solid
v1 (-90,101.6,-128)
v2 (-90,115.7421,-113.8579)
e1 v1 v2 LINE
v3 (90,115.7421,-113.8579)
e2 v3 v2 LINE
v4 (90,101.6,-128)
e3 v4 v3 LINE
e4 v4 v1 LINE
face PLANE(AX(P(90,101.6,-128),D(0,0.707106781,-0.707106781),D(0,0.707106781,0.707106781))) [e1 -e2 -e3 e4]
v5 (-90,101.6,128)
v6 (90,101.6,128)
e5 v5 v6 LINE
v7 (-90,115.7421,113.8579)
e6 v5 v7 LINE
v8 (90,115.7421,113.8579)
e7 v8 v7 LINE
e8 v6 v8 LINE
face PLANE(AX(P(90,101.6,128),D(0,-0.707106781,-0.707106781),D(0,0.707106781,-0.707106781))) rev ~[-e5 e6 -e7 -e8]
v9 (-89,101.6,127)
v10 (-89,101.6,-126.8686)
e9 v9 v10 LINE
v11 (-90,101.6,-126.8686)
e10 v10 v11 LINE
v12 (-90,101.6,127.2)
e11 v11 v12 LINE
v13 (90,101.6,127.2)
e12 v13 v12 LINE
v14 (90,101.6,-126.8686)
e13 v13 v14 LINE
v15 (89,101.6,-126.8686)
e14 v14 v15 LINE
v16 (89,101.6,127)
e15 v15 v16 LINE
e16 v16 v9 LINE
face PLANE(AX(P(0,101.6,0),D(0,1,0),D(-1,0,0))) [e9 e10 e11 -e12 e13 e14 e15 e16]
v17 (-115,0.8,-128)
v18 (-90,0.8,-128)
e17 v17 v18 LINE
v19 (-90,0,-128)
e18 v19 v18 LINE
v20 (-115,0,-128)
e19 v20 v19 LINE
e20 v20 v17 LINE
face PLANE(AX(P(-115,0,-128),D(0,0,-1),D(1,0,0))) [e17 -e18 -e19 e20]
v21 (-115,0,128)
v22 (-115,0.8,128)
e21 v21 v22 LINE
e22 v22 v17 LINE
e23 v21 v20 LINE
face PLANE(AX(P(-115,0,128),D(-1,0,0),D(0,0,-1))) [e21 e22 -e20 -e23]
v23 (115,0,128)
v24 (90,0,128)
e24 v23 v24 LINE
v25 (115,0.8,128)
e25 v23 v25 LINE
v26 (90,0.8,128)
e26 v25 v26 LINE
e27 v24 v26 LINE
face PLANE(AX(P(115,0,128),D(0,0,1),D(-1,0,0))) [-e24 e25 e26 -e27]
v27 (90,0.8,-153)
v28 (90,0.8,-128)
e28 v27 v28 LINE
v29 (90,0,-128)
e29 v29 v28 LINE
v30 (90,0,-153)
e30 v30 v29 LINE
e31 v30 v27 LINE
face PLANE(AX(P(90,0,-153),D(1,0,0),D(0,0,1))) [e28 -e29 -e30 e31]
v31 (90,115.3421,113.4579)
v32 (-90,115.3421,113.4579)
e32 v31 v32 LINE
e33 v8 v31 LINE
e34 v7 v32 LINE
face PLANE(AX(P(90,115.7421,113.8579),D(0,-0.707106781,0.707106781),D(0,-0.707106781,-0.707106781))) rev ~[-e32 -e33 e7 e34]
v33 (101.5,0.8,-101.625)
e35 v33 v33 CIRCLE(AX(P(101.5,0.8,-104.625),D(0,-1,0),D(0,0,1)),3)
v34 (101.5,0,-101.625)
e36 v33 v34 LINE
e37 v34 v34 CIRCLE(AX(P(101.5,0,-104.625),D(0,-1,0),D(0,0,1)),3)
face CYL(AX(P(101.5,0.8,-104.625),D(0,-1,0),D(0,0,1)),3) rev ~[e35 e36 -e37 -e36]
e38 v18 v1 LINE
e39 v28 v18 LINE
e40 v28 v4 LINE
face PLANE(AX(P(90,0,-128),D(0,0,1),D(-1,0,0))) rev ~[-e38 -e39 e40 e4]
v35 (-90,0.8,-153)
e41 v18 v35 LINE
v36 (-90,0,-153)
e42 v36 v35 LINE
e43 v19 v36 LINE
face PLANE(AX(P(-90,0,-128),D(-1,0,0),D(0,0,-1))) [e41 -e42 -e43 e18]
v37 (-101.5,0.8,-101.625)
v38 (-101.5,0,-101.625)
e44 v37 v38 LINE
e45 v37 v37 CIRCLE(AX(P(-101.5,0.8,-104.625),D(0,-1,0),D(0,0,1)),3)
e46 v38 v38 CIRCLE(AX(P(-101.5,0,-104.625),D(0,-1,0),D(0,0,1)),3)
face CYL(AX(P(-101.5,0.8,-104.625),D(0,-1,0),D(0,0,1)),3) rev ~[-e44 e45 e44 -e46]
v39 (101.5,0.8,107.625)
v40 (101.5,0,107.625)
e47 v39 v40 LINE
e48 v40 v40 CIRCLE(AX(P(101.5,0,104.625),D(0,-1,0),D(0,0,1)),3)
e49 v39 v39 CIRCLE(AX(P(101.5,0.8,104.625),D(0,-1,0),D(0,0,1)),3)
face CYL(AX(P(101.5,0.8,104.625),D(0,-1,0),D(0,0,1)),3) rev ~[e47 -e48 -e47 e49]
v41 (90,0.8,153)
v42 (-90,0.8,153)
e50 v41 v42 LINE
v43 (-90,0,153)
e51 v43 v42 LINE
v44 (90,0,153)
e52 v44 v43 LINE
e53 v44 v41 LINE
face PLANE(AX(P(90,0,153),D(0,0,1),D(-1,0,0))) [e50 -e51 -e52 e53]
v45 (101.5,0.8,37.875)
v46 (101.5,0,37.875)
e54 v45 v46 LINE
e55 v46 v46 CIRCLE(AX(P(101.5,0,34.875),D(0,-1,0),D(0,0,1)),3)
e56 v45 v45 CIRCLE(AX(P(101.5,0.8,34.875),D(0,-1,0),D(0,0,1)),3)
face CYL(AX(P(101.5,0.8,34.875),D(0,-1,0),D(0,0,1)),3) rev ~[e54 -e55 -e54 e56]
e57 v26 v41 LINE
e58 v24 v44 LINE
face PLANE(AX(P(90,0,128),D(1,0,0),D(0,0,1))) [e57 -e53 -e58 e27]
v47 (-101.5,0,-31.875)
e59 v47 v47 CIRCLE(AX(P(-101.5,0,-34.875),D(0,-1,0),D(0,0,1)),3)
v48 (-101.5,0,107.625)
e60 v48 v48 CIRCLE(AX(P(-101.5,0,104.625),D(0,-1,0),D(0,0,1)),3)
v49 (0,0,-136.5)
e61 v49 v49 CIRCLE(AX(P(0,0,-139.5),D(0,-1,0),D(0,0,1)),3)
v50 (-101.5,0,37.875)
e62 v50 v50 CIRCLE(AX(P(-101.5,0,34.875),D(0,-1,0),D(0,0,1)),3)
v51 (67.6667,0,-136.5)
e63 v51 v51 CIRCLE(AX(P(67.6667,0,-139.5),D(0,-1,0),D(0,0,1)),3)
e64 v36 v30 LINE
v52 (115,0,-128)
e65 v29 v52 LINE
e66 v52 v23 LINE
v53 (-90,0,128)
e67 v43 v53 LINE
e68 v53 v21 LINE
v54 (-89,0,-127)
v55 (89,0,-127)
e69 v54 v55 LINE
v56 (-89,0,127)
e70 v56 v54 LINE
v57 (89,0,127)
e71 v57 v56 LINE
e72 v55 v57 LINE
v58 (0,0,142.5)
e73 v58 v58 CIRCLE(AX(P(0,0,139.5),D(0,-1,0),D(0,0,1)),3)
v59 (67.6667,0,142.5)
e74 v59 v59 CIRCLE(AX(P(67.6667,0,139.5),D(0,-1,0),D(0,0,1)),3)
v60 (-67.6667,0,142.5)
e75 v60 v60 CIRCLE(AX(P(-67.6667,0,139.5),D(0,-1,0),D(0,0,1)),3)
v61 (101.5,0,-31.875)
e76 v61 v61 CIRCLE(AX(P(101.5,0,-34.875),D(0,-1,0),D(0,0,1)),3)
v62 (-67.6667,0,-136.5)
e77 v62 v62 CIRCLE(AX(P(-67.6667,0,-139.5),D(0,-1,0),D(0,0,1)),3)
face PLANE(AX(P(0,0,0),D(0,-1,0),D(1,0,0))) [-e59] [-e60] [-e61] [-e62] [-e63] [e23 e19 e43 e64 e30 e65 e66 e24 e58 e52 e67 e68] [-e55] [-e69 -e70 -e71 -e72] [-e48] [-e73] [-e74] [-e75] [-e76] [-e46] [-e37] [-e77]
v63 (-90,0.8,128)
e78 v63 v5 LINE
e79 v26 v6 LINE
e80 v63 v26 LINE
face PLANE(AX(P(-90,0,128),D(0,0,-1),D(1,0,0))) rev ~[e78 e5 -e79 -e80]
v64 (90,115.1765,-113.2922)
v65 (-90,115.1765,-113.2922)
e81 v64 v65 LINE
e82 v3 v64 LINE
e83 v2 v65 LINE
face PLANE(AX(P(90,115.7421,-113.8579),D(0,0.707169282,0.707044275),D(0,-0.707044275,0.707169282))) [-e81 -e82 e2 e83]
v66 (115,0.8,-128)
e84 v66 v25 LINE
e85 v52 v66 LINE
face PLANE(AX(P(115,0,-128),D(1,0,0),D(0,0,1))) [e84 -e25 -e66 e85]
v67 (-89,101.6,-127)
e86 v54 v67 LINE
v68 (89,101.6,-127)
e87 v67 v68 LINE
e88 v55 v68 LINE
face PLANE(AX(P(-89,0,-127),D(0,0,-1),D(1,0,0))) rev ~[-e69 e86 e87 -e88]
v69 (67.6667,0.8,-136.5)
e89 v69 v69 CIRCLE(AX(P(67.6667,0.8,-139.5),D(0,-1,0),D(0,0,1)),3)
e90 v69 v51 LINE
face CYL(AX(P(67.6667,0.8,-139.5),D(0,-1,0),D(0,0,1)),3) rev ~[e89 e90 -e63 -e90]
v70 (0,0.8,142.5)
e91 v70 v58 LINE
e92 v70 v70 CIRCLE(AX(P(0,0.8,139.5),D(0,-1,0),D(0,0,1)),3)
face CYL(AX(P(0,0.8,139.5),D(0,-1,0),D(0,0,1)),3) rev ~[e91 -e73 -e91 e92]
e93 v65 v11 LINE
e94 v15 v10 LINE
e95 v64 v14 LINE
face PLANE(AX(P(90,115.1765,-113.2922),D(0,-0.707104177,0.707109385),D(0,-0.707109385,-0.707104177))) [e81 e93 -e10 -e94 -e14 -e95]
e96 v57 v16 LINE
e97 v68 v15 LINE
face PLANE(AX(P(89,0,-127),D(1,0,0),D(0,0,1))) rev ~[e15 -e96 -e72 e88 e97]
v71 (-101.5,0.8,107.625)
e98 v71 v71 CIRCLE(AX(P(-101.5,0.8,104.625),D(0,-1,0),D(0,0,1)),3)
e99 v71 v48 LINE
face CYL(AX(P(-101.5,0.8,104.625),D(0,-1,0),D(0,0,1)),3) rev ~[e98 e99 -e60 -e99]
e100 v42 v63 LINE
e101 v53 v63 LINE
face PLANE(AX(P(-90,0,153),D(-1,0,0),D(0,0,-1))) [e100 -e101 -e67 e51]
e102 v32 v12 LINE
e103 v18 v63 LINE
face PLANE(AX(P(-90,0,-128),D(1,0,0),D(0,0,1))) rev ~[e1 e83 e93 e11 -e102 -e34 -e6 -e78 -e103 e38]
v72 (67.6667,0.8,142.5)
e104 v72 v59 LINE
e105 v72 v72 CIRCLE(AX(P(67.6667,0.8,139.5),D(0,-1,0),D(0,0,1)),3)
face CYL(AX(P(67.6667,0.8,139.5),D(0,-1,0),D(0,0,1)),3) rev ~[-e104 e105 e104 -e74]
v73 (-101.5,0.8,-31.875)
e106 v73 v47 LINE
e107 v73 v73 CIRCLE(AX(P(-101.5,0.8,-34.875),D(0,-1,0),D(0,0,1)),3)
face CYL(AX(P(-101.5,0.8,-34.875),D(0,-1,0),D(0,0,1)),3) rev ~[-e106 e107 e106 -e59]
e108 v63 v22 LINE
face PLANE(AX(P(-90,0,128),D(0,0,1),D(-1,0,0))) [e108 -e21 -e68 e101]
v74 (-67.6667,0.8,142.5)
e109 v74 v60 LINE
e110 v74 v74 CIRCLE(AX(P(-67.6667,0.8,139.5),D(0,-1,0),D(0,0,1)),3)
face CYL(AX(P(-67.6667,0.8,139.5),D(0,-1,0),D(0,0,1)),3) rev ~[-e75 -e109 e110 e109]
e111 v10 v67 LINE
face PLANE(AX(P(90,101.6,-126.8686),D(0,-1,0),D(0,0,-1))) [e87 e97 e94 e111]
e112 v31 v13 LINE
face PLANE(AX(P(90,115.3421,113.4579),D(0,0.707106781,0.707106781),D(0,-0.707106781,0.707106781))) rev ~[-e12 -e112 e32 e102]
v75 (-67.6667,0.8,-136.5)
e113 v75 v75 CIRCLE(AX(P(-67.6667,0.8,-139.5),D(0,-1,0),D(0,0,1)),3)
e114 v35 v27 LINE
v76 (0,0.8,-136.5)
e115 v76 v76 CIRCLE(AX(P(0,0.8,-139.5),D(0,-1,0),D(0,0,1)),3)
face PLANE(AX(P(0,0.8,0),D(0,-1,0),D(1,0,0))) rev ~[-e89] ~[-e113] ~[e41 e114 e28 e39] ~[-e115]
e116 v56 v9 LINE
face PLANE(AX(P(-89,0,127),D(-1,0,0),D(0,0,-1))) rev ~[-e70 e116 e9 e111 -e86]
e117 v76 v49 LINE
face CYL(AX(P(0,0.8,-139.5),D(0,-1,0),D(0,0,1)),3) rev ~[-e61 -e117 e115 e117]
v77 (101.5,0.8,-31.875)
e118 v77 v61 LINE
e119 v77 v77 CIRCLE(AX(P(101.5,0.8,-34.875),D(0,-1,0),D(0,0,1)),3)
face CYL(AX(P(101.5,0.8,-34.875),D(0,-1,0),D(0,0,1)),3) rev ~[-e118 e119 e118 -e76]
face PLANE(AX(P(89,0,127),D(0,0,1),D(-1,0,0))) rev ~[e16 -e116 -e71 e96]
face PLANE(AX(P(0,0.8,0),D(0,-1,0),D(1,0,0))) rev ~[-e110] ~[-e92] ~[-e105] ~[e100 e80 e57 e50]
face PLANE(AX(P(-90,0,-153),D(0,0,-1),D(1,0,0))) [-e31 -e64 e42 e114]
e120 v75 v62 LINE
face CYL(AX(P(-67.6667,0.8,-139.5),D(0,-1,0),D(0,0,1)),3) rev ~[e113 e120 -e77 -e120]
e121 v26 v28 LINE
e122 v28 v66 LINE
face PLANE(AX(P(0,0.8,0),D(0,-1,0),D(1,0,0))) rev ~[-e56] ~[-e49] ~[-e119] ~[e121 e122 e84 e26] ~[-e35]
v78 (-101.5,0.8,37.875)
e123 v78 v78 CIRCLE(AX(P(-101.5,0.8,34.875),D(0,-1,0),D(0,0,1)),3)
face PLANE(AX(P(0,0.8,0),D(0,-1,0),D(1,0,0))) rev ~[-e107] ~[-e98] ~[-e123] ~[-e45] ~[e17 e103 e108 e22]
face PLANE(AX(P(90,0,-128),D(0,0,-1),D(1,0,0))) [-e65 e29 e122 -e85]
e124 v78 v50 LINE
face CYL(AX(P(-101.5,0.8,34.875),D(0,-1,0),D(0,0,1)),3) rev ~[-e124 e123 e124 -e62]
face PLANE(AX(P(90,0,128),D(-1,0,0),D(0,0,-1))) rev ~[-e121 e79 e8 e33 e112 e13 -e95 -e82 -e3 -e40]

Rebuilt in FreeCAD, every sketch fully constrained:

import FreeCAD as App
import Part
import Sketcher
from FreeCAD import Vector
Q = App.Units.Quantity

doc = App.newDocument("Part")
params = doc.addObject("Spreadsheet::Sheet", "Params")
for row, (alias, value) in enumerate([
    ("sketch1_width", "178 mm"),
    ("sketch1_height", "254 mm"),
    ("pad1_length", "101.6 mm"),
    ("sketch2_width", "25 mm"),
    ("sketch2_width2", "180 mm"),
    ("sketch2_height", "256 mm"),
    ("pad2_length", "0.8 mm"),
    ("sketch3_diameter", "6 mm"),
    ("hole_diameter", "6 mm"),
    ("sketch4_length", "20 mm"),
    ("sketch4_height", "0.8 mm"),
    ("sketch4_length2", "0.8 mm"),
    ("pad3_length", "180 mm"),
], start=1):
    params.set(f"A{row}", alias)
    params.set(f"B{row}", "=" + value)
    params.setAlias(f"B{row}", alias)

body = doc.addObject("PartDesign::Body", "Body")

sketch1 = doc.addObject("Sketcher::SketchObject", "Sketch")
body.addObject(sketch1)
sketch1.AttachmentSupport = (doc.XZ_Plane, [""])
sketch1.MapMode = "FlatFace"
sketch1.addGeometry([
    Part.LineSegment(Vector(-90, -128, 0), Vector(-90, 128, 0)),
    Part.LineSegment(Vector(-90, 128, 0), Vector(90, 128, 0)),
    Part.LineSegment(Vector(90, 128, 0), Vector(90, -128, 0)),
    Part.LineSegment(Vector(90, -128, 0), Vector(-90, -128, 0)),
    Part.LineSegment(Vector(89, -127, 0), Vector(89, 127, 0)),
    Part.LineSegment(Vector(89, 127, 0), Vector(-89, 127, 0)),
    Part.LineSegment(Vector(-89, 127, 0), Vector(-89, -127, 0)),
    Part.LineSegment(Vector(-89, -127, 0), Vector(89, -127, 0)),
], False)
sketch1.addConstraint([
    Sketcher.Constraint("Coincident", 0, 2, 1, 1),
    Sketcher.Constraint("Coincident", 1, 2, 2, 1),
    Sketcher.Constraint("Coincident", 2, 2, 3, 1),
    Sketcher.Constraint("Coincident", 3, 2, 0, 1),
    Sketcher.Constraint("Coincident", 4, 2, 5, 1),
    Sketcher.Constraint("Coincident", 5, 2, 6, 1),
    Sketcher.Constraint("Coincident", 6, 2, 7, 1),
    Sketcher.Constraint("Coincident", 7, 2, 4, 1),
    Sketcher.Constraint("Vertical", 0),
    Sketcher.Constraint("Horizontal", 1),
    Sketcher.Constraint("Vertical", 2),
    Sketcher.Constraint("Horizontal", 3),
    Sketcher.Constraint("Vertical", 4),
    Sketcher.Constraint("Horizontal", 5),
    Sketcher.Constraint("Vertical", 6),
    Sketcher.Constraint("Horizontal", 7),
    Sketcher.Constraint("Symmetric", 0, 2, 2, 2, -1, 1),
    Sketcher.Constraint("Symmetric", 4, 2, 6, 2, -1, 1),
    Sketcher.Constraint("DistanceX", 5, 2, 5, 1, Q("178 mm")),
    Sketcher.Constraint("DistanceY", 4, 1, 4, 2, Q("254 mm")),
    Sketcher.Constraint("DistanceX", 4, 2, 1, 2, Q("1 mm")),
    Sketcher.Constraint("DistanceY", 4, 2, 1, 2, Q("1 mm")),
])
sketch1.setExpression("Constraints[18]", "Params.sketch1_width")
sketch1.setExpression("Constraints[19]", "Params.sketch1_height")
pad1 = doc.addObject("PartDesign::Pad", "Pad")
body.addObject(pad1)
pad1.Profile = sketch1
pad1.setExpression("Length", "Params.pad1_length")
pad1.Reversed = True

sketch2 = doc.addObject("Sketcher::SketchObject", "Sketch001")
body.addObject(sketch2)
sketch2.AttachmentSupport = (doc.XZ_Plane, [""])
sketch2.MapMode = "FlatFace"
sketch2.addGeometry([
    Part.LineSegment(Vector(115, 128, 0), Vector(90, 128, 0)),
    Part.LineSegment(Vector(90, 128, 0), Vector(90, -128, 0)),
    Part.LineSegment(Vector(90, -128, 0), Vector(115, -128, 0)),
    Part.LineSegment(Vector(115, -128, 0), Vector(115, 128, 0)),
    Part.LineSegment(Vector(-90, 128, 0), Vector(90, 128, 0)),
    Part.LineSegment(Vector(90, 128, 0), Vector(90, 153, 0)),
    Part.LineSegment(Vector(90, 153, 0), Vector(-90, 153, 0)),
    Part.LineSegment(Vector(-90, 153, 0), Vector(-90, 128, 0)),
    Part.LineSegment(Vector(90, -153, 0), Vector(90, -128, 0)),
    Part.LineSegment(Vector(90, -128, 0), Vector(-90, -128, 0)),
    Part.LineSegment(Vector(-90, -128, 0), Vector(-90, -153, 0)),
    Part.LineSegment(Vector(-90, -153, 0), Vector(90, -153, 0)),
    Part.LineSegment(Vector(-90, -128, 0), Vector(-90, 128, 0)),
    Part.LineSegment(Vector(-90, 128, 0), Vector(-115, 128, 0)),
    Part.LineSegment(Vector(-115, 128, 0), Vector(-115, -128, 0)),
    Part.LineSegment(Vector(-115, -128, 0), Vector(-90, -128, 0)),
], False)
sketch2.addConstraint([
    Sketcher.Constraint("Coincident", 0, 2, 1, 1),
    Sketcher.Constraint("Coincident", 1, 2, 2, 1),
    Sketcher.Constraint("Coincident", 2, 2, 3, 1),
    Sketcher.Constraint("Coincident", 3, 2, 0, 1),
    Sketcher.Constraint("Coincident", 4, 2, 5, 1),
    Sketcher.Constraint("Coincident", 5, 2, 6, 1),
    Sketcher.Constraint("Coincident", 6, 2, 7, 1),
    Sketcher.Constraint("Coincident", 7, 2, 4, 1),
    Sketcher.Constraint("Coincident", 8, 2, 9, 1),
    Sketcher.Constraint("Coincident", 9, 2, 10, 1),
    Sketcher.Constraint("Coincident", 10, 2, 11, 1),
    Sketcher.Constraint("Coincident", 11, 2, 8, 1),
    Sketcher.Constraint("Coincident", 12, 2, 13, 1),
    Sketcher.Constraint("Coincident", 13, 2, 14, 1),
    Sketcher.Constraint("Coincident", 14, 2, 15, 1),
    Sketcher.Constraint("Coincident", 15, 2, 12, 1),
    Sketcher.Constraint("Horizontal", 0),
    Sketcher.Constraint("Vertical", 1),
    Sketcher.Constraint("Horizontal", 2),
    Sketcher.Constraint("Vertical", 3),
    Sketcher.Constraint("Horizontal", 4),
    Sketcher.Constraint("Vertical", 5),
    Sketcher.Constraint("Horizontal", 6),
    Sketcher.Constraint("Vertical", 7),
    Sketcher.Constraint("Vertical", 8),
    Sketcher.Constraint("Horizontal", 9),
    Sketcher.Constraint("Vertical", 10),
    Sketcher.Constraint("Horizontal", 11),
    Sketcher.Constraint("Vertical", 12),
    Sketcher.Constraint("Horizontal", 13),
    Sketcher.Constraint("Vertical", 14),
    Sketcher.Constraint("Horizontal", 15),
    Sketcher.Constraint("Coincident", 4, 2, 0, 2),
    Sketcher.Constraint("Coincident", 8, 2, 1, 2),
    Sketcher.Constraint("Coincident", 12, 2, 7, 2),
    Sketcher.Constraint("Coincident", 15, 2, 9, 2),
    Sketcher.Constraint("Symmetric", 1, 2, 7, 2, -1, 1),
    Sketcher.Constraint("Equal", 2, 13),
    Sketcher.Constraint("Equal", 15, 5),
    Sketcher.Constraint("Equal", 7, 8),
    Sketcher.Constraint("DistanceX", 0, 2, 0, 1, Q("25 mm")),
    Sketcher.Constraint("DistanceX", 4, 1, 4, 2, Q("180 mm")),
    Sketcher.Constraint("DistanceY", 1, 2, 1, 1, Q("256 mm")),
])
sketch2.setExpression("Constraints[40]", "Params.sketch2_width")
sketch2.setExpression("Constraints[41]", "Params.sketch2_width2")
sketch2.setExpression("Constraints[42]", "Params.sketch2_height")
pad2 = doc.addObject("PartDesign::Pad", "Pad001")
body.addObject(pad2)
pad2.Profile = sketch2
pad2.setExpression("Length", "Params.pad2_length")
pad2.Reversed = True

sketch3 = doc.addObject("Sketcher::SketchObject", "Sketch002")
body.addObject(sketch3)
sketch3.AttachmentSupport = (doc.XZ_Plane, [""])
sketch3.MapMode = "FlatFace"
sketch3.AttachmentOffset = App.Placement(Vector(0, 0, -0.8), App.Rotation())
sketch3.addGeometry([
    Part.Circle(Vector(101.5, -139.5, 0), Vector(0, 0, 1), 3),
    Part.Circle(Vector(101.5, -104.6, 0), Vector(0, 0, 1), 3),
    Part.Circle(Vector(101.5, -34.9, 0), Vector(0, 0, 1), 3),
    Part.Circle(Vector(101.5, 34.9, 0), Vector(0, 0, 1), 3),
    Part.Circle(Vector(101.5, 104.6, 0), Vector(0, 0, 1), 3),
    Part.Circle(Vector(101.5, 139.5, 0), Vector(0, 0, 1), 3),
    Part.Circle(Vector(67.7, -139.5, 0), Vector(0, 0, 1), 3),
    Part.Circle(Vector(0, -139.5, 0), Vector(0, 0, 1), 3),
    Part.Circle(Vector(-67.7, -139.5, 0), Vector(0, 0, 1), 3),
    Part.Circle(Vector(-101.5, -139.5, 0), Vector(0, 0, 1), 3),
    Part.Circle(Vector(67.7, 139.5, 0), Vector(0, 0, 1), 3),
    Part.Circle(Vector(0, 139.5, 0), Vector(0, 0, 1), 3),
    Part.Circle(Vector(-67.7, 139.5, 0), Vector(0, 0, 1), 3),
    Part.Circle(Vector(-101.5, 139.5, 0), Vector(0, 0, 1), 3),
    Part.Circle(Vector(-101.5, -104.6, 0), Vector(0, 0, 1), 3),
    Part.Circle(Vector(-101.5, -34.9, 0), Vector(0, 0, 1), 3),
    Part.Circle(Vector(-101.5, 34.9, 0), Vector(0, 0, 1), 3),
    Part.Circle(Vector(-101.5, 104.6, 0), Vector(0, 0, 1), 3),
], False)
sketch3.addConstraint([
    Sketcher.Constraint("Equal", 0, 1),
    Sketcher.Constraint("Equal", 1, 2),
    Sketcher.Constraint("Equal", 2, 3),
    Sketcher.Constraint("Equal", 3, 4),
    Sketcher.Constraint("Equal", 4, 5),
    Sketcher.Constraint("Equal", 5, 6),
    Sketcher.Constraint("Equal", 6, 7),
    Sketcher.Constraint("Equal", 7, 8),
    Sketcher.Constraint("Equal", 8, 9),
    Sketcher.Constraint("Equal", 9, 10),
    Sketcher.Constraint("Equal", 10, 11),
    Sketcher.Constraint("Equal", 11, 12),
    Sketcher.Constraint("Equal", 12, 13),
    Sketcher.Constraint("Equal", 13, 14),
    Sketcher.Constraint("Equal", 14, 15),
    Sketcher.Constraint("Equal", 15, 16),
    Sketcher.Constraint("Equal", 16, 17),
    Sketcher.Constraint("Symmetric", 5, 3, 9, 3, -1, 1),
    Sketcher.Constraint("Symmetric", 8, 3, 10, 3, -1, 1),
    Sketcher.Constraint("Symmetric", 7, 3, 11, 3, -1, 1),
    Sketcher.Constraint("Symmetric", 6, 3, 12, 3, -1, 1),
    Sketcher.Constraint("Symmetric", 0, 3, 13, 3, -1, 1),
    Sketcher.Constraint("Symmetric", 4, 3, 14, 3, -1, 1),
    Sketcher.Constraint("Symmetric", 3, 3, 15, 3, -1, 1),
    Sketcher.Constraint("Symmetric", 2, 3, 16, 3, -1, 1),
    Sketcher.Constraint("Symmetric", 1, 3, 17, 3, -1, 1),
    Sketcher.Constraint("Symmetric", 6, 3, 8, 3, -2),
    Sketcher.Constraint("Symmetric", 0, 3, 9, 3, -2),
    Sketcher.Constraint("Symmetric", 1, 3, 14, 3, -2),
    Sketcher.Constraint("Symmetric", 2, 3, 15, 3, -2),
    Sketcher.Constraint("PointOnObject", 7, 3, -2),
    Sketcher.Constraint("Horizontal", 0, 3, 6, 3),
    Sketcher.Constraint("Horizontal", 6, 3, 7, 3),
    Sketcher.Constraint("Vertical", 0, 3, 1, 3),
    Sketcher.Constraint("Vertical", 1, 3, 2, 3),
    Sketcher.Constraint("Diameter", 0, Q("6 mm")),
    Sketcher.Constraint("DistanceY", 0, 3, 5, 3, Q("279 mm")),
    Sketcher.Constraint("DistanceX", 9, 3, 0, 3, Q("203 mm")),
    Sketcher.Constraint("DistanceY", 1, 3, 3, 3, Q("139.5 mm")),
    Sketcher.Constraint("DistanceY", 1, 3, 2, 3, Q("69.75 mm")),
    Sketcher.Constraint("DistanceX", -1, 1, 6, 3, Q("67.6667 mm")),
])
sketch3.setExpression("Constraints[35]", "Params.sketch3_diameter")
doc.recompute()
hole = doc.addObject("PartDesign::Hole", "Hole")
body.addObject(hole)
hole.Profile = sketch3
hole.ThreadType = "None"
hole.setExpression("Diameter", "Params.hole_diameter")
hole.DepthType = "ThroughAll"
hole.Reversed = True

sketch4 = doc.addObject("Sketcher::SketchObject", "Sketch003")
body.addObject(sketch4)
sketch4.AttachmentSupport = (doc.YZ_Plane, [""])
sketch4.MapMode = "FlatFace"
sketch4.AttachmentOffset = App.Placement(Vector(0, 0, 90), App.Rotation())
sketch4.addGeometry([
    Part.LineSegment(Vector(115.2, -113.3, 0), Vector(101.6, -126.9, 0)),
    Part.LineSegment(Vector(101.6, -126.9, 0), Vector(101.6, -128, 0)),
    Part.LineSegment(Vector(101.6, -128, 0), Vector(115.7, -113.9, 0)),
    Part.LineSegment(Vector(115.7, -113.9, 0), Vector(115.2, -113.3, 0)),
    Part.LineSegment(Vector(115.7, 113.9, 0), Vector(101.6, 128, 0)),
    Part.LineSegment(Vector(101.6, 128, 0), Vector(101.6, 127.2, 0)),
    Part.LineSegment(Vector(101.6, 127.2, 0), Vector(115.3, 113.5, 0)),
    Part.LineSegment(Vector(115.3, 113.5, 0), Vector(115.7, 113.9, 0)),
], False)
sketch4.addConstraint([
    Sketcher.Constraint("Coincident", 0, 2, 1, 1),
    Sketcher.Constraint("Coincident", 1, 2, 2, 1),
    Sketcher.Constraint("Coincident", 2, 2, 3, 1),
    Sketcher.Constraint("Coincident", 3, 2, 0, 1),
    Sketcher.Constraint("Coincident", 4, 2, 5, 1),
    Sketcher.Constraint("Coincident", 5, 2, 6, 1),
    Sketcher.Constraint("Coincident", 6, 2, 7, 1),
    Sketcher.Constraint("Coincident", 7, 2, 4, 1),
    Sketcher.Constraint("Vertical", 1),
    Sketcher.Constraint("Vertical", 5),
    Sketcher.Constraint("Symmetric", 1, 2, 4, 2, -1),
    Sketcher.Constraint("Symmetric", 2, 2, 7, 2, -1),
    Sketcher.Constraint("Parallel", 0, 2),
    Sketcher.Constraint("Perpendicular", 2, 3),
    Sketcher.Constraint("Parallel", 3, 4),
    Sketcher.Constraint("Parallel", 4, 6),
    Sketcher.Constraint("Perpendicular", 6, 7),
    Sketcher.Constraint("Distance", 2, Q("20 mm")),
    Sketcher.Constraint("DistanceY", 5, 2, 5, 1, Q("0.8 mm")),
    Sketcher.Constraint("Distance", 3, Q("0.8 mm")),
    Sketcher.Constraint("DistanceY", 1, 2, -1, 1, Q("128 mm")),
    Sketcher.Constraint("DistanceX", -1, 1, 0, 2, Q("101.6 mm")),
])
sketch4.setExpression("Constraints[17]", "Params.sketch4_length")
sketch4.setExpression("Constraints[18]", "Params.sketch4_height")
sketch4.setExpression("Constraints[19]", "Params.sketch4_length2")
pad3 = doc.addObject("PartDesign::Pad", "Pad002")
body.addObject(pad3)
pad3.Profile = sketch4
pad3.setExpression("Length", "Params.pad3_length")
pad3.Reversed = True

doc.recompute()
